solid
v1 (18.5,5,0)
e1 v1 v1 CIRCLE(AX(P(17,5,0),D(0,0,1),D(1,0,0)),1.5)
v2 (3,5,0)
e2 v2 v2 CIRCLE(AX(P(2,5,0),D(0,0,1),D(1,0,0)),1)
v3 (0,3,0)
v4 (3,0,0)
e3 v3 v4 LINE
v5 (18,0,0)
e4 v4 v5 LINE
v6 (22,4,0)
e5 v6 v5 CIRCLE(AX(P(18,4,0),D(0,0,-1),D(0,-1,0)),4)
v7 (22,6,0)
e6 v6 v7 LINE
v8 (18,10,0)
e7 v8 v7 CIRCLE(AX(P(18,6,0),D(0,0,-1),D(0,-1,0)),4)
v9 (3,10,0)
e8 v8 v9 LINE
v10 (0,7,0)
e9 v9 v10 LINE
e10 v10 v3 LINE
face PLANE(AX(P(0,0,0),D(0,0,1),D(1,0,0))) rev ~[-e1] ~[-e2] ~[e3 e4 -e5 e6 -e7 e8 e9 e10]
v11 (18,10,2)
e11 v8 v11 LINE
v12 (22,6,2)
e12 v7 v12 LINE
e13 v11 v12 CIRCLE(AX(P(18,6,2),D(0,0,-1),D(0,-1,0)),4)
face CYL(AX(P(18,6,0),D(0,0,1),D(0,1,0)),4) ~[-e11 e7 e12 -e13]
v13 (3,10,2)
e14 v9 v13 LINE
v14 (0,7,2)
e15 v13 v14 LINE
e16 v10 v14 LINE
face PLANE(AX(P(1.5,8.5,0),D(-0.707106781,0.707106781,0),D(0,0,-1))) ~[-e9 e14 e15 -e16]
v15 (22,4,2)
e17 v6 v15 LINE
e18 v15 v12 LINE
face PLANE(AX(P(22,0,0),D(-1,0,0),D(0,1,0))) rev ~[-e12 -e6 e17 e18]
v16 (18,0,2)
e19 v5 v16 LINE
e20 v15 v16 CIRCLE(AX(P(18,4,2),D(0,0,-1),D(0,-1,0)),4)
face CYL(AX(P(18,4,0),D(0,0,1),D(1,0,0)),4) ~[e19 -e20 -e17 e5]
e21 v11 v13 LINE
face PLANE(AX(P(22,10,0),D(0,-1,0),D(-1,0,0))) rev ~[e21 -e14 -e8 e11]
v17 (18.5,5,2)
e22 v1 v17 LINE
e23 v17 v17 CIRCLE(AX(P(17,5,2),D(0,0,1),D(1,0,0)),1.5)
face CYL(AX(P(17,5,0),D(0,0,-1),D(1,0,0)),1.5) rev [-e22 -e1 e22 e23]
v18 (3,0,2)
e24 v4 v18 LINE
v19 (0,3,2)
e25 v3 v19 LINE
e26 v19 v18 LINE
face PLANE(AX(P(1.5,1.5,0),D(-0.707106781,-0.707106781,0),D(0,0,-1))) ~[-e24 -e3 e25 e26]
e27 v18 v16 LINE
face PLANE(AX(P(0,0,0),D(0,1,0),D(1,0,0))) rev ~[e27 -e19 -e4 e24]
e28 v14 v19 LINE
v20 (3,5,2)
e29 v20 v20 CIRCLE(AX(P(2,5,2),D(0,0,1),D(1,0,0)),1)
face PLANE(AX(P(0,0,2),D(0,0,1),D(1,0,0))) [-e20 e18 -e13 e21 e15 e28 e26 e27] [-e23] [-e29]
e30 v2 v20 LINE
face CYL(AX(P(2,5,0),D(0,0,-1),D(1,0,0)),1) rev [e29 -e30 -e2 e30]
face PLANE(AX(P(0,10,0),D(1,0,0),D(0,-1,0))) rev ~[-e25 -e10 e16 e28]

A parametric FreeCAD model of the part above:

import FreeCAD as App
import Part
import Sketcher

V = App.Vector
Q = App.Units.Quantity


def edges_at(feature, points):
    """Names of the edges that pass closest to the given points."""
    edges = feature.Shape.Edges
    near = lambda p: min(range(len(edges)), key=lambda i: edges[i].distToShape(Part.Vertex(*p))[0])
    return sorted({f"Edge{near(p) + 1}" for p in points})

doc = App.newDocument("Part")
body = doc.addObject("PartDesign::Body", "Body")

# Sketch on XY plane
sketch1 = body.newObject("Sketcher::SketchObject", "Sketch")
sketch1.AttachmentSupport = (doc.getObject("XY_Plane"), [""])
sketch1.MapMode = "FlatFace"
sketch1.addGeometry(Part.LineSegment(V(0, 10, 0), V(0, 0, 0)), False)
sketch1.addGeometry(Part.LineSegment(V(0, 0, 0), V(22, 0, 0)), False)
sketch1.addGeometry(Part.LineSegment(V(22, 0, 0), V(22, 10, 0)), False)
sketch1.addGeometry(Part.LineSegment(V(22, 10, 0), V(0, 10, 0)), False)
sketch1.addGeometry(Part.Circle(V(2, 5, 0), V(0, 0, 1), 1), False)
sketch1.addGeometry(Part.Circle(V(17, 5, 0), V(0, 0, 1), 1.5), False)
sketch1.addConstraint(Sketcher.Constraint("Coincident", 0, 2, 1, 1))
sketch1.addConstraint(Sketcher.Constraint("Coincident", 1, 2, 2, 1))
sketch1.addConstraint(Sketcher.Constraint("Coincident", 2, 2, 3, 1))
sketch1.addConstraint(Sketcher.Constraint("Coincident", 3, 2, 0, 1))
sketch1.addConstraint(Sketcher.Constraint("Vertical", 0))
sketch1.addConstraint(Sketcher.Constraint("Horizontal", 1))
sketch1.addConstraint(Sketcher.Constraint("Vertical", 2))
sketch1.addConstraint(Sketcher.Constraint("Horizontal", 3))
sketch1.addConstraint(Sketcher.Constraint("Coincident", 0, 2, -1, 1))
sketch1.addConstraint(Sketcher.Constraint("Horizontal", 4, 3, 5, 3))
sketch1.addConstraint(Sketcher.Constraint("Diameter", 4, Q("2 mm")))
sketch1.addConstraint(Sketcher.Constraint("Diameter", 5, Q("3 mm")))
sketch1.addConstraint(Sketcher.Constraint("DistanceX", 1, 1, 1, 2, Q("22 mm")))
sketch1.addConstraint(Sketcher.Constraint("DistanceY", 0, 2, 0, 1, Q("10 mm")))
sketch1.addConstraint(Sketcher.Constraint("DistanceX", -1, 1, 4, 3, Q("2 mm")))
sketch1.addConstraint(Sketcher.Constraint("DistanceY", -1, 1, 4, 3, Q("5 mm")))
sketch1.addConstraint(Sketcher.Constraint("DistanceX", 4, 3, 5, 3, Q("15 mm")))
pad1 = body.newObject("PartDesign::Pad", "Pad")
pad1.Profile = sketch1
pad1.Length = 2
doc.recompute()

fillet = body.newObject("PartDesign::Fillet", "Fillet")
fillet.Base = (pad1, edges_at(pad1, [(22, 10, 1), (22, 0, 1)]))
fillet.Radius = 4
doc.recompute()

chamfer = body.newObject("PartDesign::Chamfer", "Chamfer")
chamfer.Base = (fillet, edges_at(fillet, [(0, 10, 1), (0, 0, 1)]))
chamfer.Size = 3

doc.recompute()
